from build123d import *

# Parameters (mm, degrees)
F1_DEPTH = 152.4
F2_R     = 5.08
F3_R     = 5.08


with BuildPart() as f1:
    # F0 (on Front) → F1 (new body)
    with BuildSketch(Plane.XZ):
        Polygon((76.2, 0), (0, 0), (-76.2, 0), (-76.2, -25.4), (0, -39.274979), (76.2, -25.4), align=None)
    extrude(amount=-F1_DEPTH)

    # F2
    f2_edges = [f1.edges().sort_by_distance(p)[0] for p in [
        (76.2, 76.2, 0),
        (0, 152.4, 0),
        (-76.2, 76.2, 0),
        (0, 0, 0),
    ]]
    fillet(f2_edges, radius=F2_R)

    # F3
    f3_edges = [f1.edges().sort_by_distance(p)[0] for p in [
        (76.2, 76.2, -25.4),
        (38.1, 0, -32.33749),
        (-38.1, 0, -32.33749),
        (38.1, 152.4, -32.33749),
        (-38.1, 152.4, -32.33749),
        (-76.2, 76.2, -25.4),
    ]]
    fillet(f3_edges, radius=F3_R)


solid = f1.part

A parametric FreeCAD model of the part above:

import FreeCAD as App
import Part
import Sketcher
from FreeCAD import Vector
Q = App.Units.Quantity


def edges_at(feature, points):
    """Names of the edges that pass closest to the given points."""
    edges = feature.Shape.Edges
    near = lambda p: min(range(len(edges)), key=lambda i: edges[i].distToShape(Part.Vertex(*p))[0])
    return sorted({f"Edge{near(p) + 1}" for p in points})

doc = App.newDocument("Part")
body = doc.addObject("PartDesign::Body", "Body")

sketch1 = body.newObject("Sketcher::SketchObject", "Sketch")
sketch1.AttachmentSupport = (doc.getObject("XZ_Plane"), [""])
sketch1.MapMode = "FlatFace"
sketch1.addGeometry([
    Part.LineSegment(Vector(76, 0, 0), Vector(-76, 0, 0)),
    Part.LineSegment(Vector(-76, 0, 0), Vector(-76, -25, 0)),
    Part.LineSegment(Vector(-76, -25, 0), Vector(0, -39, 0)),
    Part.LineSegment(Vector(0, -39, 0), Vector(76, -25, 0)),
    Part.LineSegment(Vector(76, -25, 0), Vector(76, 0, 0)),
], False)
sketch1.addConstraint([
    Sketcher.Constraint("Coincident", 0, 2, 1, 1),
    Sketcher.Constraint("Coincident", 1, 2, 2, 1),
    Sketcher.Constraint("Coincident", 2, 2, 3, 1),
    Sketcher.Constraint("Coincident", 3, 2, 4, 1),
    Sketcher.Constraint("Coincident", 4, 2, 0, 1),
    Sketcher.Constraint("Horizontal", 0),
    Sketcher.Constraint("Vertical", 1),
    Sketcher.Constraint("Vertical", 4),
    Sketcher.Constraint("Symmetric", 0, 2, 4, 2, -1, 1),
    Sketcher.Constraint("PointOnObject", 2, 2, -2),
    Sketcher.Constraint("Horizontal", 1, 2, 3, 2),
    Sketcher.Constraint("DistanceX", 0, 2, 0, 1, Q("6 in")),
    Sketcher.Constraint("DistanceY", 1, 2, 1, 1, Q("1 in")),
    Sketcher.Constraint("Distance", 2, Q("77.452921 mm")),
])
pad1 = body.newObject("PartDesign::Pad", "Pad")
pad1.Profile = sketch1
pad1.Length = Q("6 in")
pad1.Reversed = True
doc.recompute()

fillet = body.newObject("PartDesign::Fillet", "Fillet")
fillet.Base = (pad1, edges_at(pad1, [
    (76.2, 76.2, 0),
    (0, 152.4, 0),
    (-76.2, 76.2, 0),
    (0, 0, 0),
]))
fillet.Radius = Q("0.2 in")
doc.recompute()

fillet2 = body.newObject("PartDesign::Fillet", "Fillet001")
fillet2.Base = (fillet, edges_at(fillet, [
    (76.2, 76.2, -25.4),
    (38.1, 0, -32.337),
    (-38.1, 0, -32.337),
    (38.1, 152.4, -32.337),
    (-38.1, 152.4, -32.337),
    (-76.2, 76.2, -25.4),
]))
fillet2.Radius = Q("0.2 in")

doc.recompute()
